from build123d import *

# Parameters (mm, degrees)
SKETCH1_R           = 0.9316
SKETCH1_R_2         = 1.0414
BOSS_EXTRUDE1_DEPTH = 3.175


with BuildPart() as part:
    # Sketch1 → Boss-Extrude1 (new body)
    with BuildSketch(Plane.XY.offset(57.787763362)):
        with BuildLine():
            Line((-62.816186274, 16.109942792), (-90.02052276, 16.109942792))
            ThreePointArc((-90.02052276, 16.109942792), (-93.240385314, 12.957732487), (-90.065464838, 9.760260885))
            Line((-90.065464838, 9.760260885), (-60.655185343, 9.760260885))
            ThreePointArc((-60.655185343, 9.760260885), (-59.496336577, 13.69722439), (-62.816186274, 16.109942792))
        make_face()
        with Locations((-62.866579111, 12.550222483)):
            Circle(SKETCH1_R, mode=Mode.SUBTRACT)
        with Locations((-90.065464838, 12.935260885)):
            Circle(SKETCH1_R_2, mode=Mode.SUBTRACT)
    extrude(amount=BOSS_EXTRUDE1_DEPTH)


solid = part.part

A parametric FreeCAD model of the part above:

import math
import FreeCAD as App
import Part
import Sketcher
Q = App.Units.Quantity

doc = App.newDocument("Part")
body = doc.addObject("PartDesign::Body", "Body")

# Sketch on XY plane
sketch1 = body.newObject("Sketcher::SketchObject", "Sketch")
sketch1.AttachmentSupport = (doc.getObject("XY_Plane"), [""])
sketch1.MapMode = "FlatFace"
sketch1.AttachmentOffset = App.Placement(App.Vector(0, 0, 57.787763), App.Rotation())
sketch1.addGeometry(Part.LineSegment(App.Vector(-62.8, 16.1, 0), App.Vector(-90, 16.1, 0)), False)
sketch1.addGeometry(Part.ArcOfCircle(Part.Circle(App.Vector(-90.1, 12.9, 0), App.Vector(0, 0, 1), 3.2), math.radians(89), math.radians(270)), False)
sketch1.addGeometry(Part.LineSegment(App.Vector(-90.1, 9.8, 0), App.Vector(-60.7, 9.8, 0)), False)
sketch1.addGeometry(Part.ArcOfCircle(Part.Circle(App.Vector(-62.9, 12.6, 0), App.Vector(0, 0, 1), 3.6), math.radians(-52), math.radians(89)), False)
sketch1.addGeometry(Part.Circle(App.Vector(-62.9, 12.6, 0), App.Vector(0, 0, 1), 0.9), False)
sketch1.addGeometry(Part.Circle(App.Vector(-90.1, 12.9, 0), App.Vector(0, 0, 1), 1), False)
sketch1.addConstraint(Sketcher.Constraint("Coincident", 0, 2, 1, 1))
sketch1.addConstraint(Sketcher.Constraint("Tangent", 1, 2, 2, 1))
sketch1.addConstraint(Sketcher.Constraint("Coincident", 2, 2, 3, 1))
sketch1.addConstraint(Sketcher.Constraint("Coincident", 3, 2, 0, 1))
sketch1.addConstraint(Sketcher.Constraint("Horizontal", 0))
sketch1.addConstraint(Sketcher.Constraint("Horizontal", 2))
sketch1.addConstraint(Sketcher.Constraint("Coincident", 4, 3, 3, 3))
sketch1.addConstraint(Sketcher.Constraint("Coincident", 5, 3, 1, 3))
sketch1.addConstraint(Sketcher.Constraint("Diameter", 5, Q("0.082 in")))
sketch1.addConstraint(Sketcher.Constraint("Radius", 1, Q("0.125 in")))
sketch1.addConstraint(Sketcher.Constraint("Diameter", 4, 1.8632))
sketch1.addConstraint(Sketcher.Constraint("Radius", 3, 3.560077))
sketch1.addConstraint(Sketcher.Constraint("DistanceX", 2, 1, 2, 2, 29.410279))
sketch1.addConstraint(Sketcher.Constraint("DistanceX", 3, 2, 2, 2, 2.161001))
sketch1.addConstraint(Sketcher.Constraint("DistanceX", 0, 2, 0, 1, 27.204336))
sketch1.addConstraint(Sketcher.Constraint("DistanceY", -1, 1, 1, 3, 12.935261))
sketch1.addConstraint(Sketcher.Constraint("DistanceX", 3, 3, -1, 1, 62.866579))
pad1 = body.newObject("PartDesign::Pad", "Pad")
pad1.Profile = sketch1
pad1.Length = Q("0.125 in")

doc.recompute()
